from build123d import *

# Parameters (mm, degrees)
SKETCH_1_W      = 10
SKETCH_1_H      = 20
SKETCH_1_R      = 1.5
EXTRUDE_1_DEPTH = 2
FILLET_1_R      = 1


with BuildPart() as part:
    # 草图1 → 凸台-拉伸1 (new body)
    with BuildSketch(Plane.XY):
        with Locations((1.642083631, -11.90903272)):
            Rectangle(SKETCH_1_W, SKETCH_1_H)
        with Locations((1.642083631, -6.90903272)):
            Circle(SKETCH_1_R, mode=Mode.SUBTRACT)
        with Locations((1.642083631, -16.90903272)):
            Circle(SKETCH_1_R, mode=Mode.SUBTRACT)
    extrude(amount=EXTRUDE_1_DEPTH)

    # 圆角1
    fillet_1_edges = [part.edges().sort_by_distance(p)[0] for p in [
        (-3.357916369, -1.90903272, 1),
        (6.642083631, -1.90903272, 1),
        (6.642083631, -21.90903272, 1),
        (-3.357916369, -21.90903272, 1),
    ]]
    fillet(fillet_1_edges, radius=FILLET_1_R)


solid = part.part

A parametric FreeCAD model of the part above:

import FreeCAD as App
import Part
import Sketcher

V = App.Vector


def edges_at(feature, points):
    """Names of the edges that pass closest to the given points."""
    edges = feature.Shape.Edges
    near = lambda p: min(range(len(edges)), key=lambda i: edges[i].distToShape(Part.Vertex(*p))[0])
    return sorted({f"Edge{near(p) + 1}" for p in points})


def add_polygon(sketch, points):
    """Adds a closed chain of lines whose ends are joined by coincident constraints."""
    first, n = sketch.GeometryCount, len(points)
    for a, b in zip(points, points[1:] + points[:1]):
        sketch.addGeometry(Part.LineSegment(App.Vector(*a, 0), App.Vector(*b, 0)), False)
    for i in range(n):
        sketch.addConstraint(Sketcher.Constraint("Coincident", first + i, 2, first + (i + 1) % n, 1))

doc = App.newDocument("Part")
body = doc.addObject("PartDesign::Body", "Body")

# Sketch on XY plane
sketch1 = doc.addObject("Sketcher::SketchObject", "Sketch")
body.addObject(sketch1)
sketch1.AttachmentSupport = (doc.XY_Plane, [""])
sketch1.MapMode = "FlatFace"
add_polygon(sketch1, [(-3.4, -1.9), (-3.4, -21.9), (6.6, -21.9), (6.6, -1.9)])  # lines 0-3
sketch1.addGeometry(Part.Circle(V(1.6, -16.9, 0), V(0, 0, 1), 1.5), False)  # 4
sketch1.addGeometry(Part.Circle(V(1.6, -6.9, 0), V(0, 0, 1), 1.5), False)  # 5
sketch1.addConstraint(Sketcher.Constraint("Vertical", 0))
sketch1.addConstraint(Sketcher.Constraint("Horizontal", 1))
sketch1.addConstraint(Sketcher.Constraint("Vertical", 2))
sketch1.addConstraint(Sketcher.Constraint("Horizontal", 3))
sketch1.addConstraint(Sketcher.Constraint("Equal", 4, 5))
sketch1.addConstraint(Sketcher.Constraint("Vertical", 4, 3, 5, 3))
sketch1.addConstraint(Sketcher.Constraint("Diameter", 4, 3.0))
sketch1.addConstraint(Sketcher.Constraint("DistanceX", 1, 1, 1, 2, 10.0))
sketch1.addConstraint(Sketcher.Constraint("DistanceY", 0, 2, 0, 1, 20.0))
sketch1.addConstraint(Sketcher.Constraint("DistanceY", 4, 3, 5, 3, 10.0))
sketch1.addConstraint(Sketcher.Constraint("DistanceX", 0, 2, 4, 3, 5.0))
sketch1.addConstraint(Sketcher.Constraint("DistanceY", 0, 2, 4, 3, 5.0))
sketch1.addConstraint(Sketcher.Constraint("DistanceX", -1, 1, 4, 3, 1.642084))
sketch1.addConstraint(Sketcher.Constraint("DistanceY", 4, 3, -1, 1, 16.909033))
pad1 = doc.addObject("PartDesign::Pad", "Pad")
body.addObject(pad1)
pad1.Profile = sketch1
pad1.Length = 2
doc.recompute()

fillet = doc.addObject("PartDesign::Fillet", "Fillet")
body.addObject(fillet)
fillet.Base = (pad1, edges_at(pad1, [
    (-3.358, -1.909, 1),
    (6.642, -1.909, 1),
    (6.642, -21.909, 1),
    (-3.358, -21.909, 1),
]))
fillet.Radius = 1

doc.recompute()
